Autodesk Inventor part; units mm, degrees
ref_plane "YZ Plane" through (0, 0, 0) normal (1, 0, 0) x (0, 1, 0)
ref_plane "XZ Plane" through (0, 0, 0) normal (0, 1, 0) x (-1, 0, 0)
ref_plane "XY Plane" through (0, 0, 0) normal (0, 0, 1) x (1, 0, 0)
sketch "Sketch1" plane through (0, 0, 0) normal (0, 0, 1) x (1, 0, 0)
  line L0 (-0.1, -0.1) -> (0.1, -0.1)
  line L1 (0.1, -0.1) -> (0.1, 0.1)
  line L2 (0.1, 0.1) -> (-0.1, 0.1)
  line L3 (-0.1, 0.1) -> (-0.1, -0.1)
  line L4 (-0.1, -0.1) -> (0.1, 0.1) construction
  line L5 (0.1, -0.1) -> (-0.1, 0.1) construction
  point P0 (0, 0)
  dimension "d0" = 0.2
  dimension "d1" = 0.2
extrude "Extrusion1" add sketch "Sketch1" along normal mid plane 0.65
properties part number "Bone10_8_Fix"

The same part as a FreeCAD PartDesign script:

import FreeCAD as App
import Part
import Sketcher
Q = App.Units.Quantity


def add_polygon(sketch, points):
    """Adds a closed chain of lines whose ends are joined by coincident constraints."""
    first, n = sketch.GeometryCount, len(points)
    for a, b in zip(points, points[1:] + points[:1]):
        sketch.addGeometry(Part.LineSegment(App.Vector(*a, 0), App.Vector(*b, 0)), False)
    for i in range(n):
        sketch.addConstraint(Sketcher.Constraint("Coincident", first + i, 2, first + (i + 1) % n, 1))

doc = App.newDocument("Part")
body = doc.addObject("PartDesign::Body", "Body")

# Sketch on XY plane
sketch1 = body.newObject("Sketcher::SketchObject", "Sketch")
sketch1.AttachmentSupport = (doc.getObject("XY_Plane"), [""])
sketch1.MapMode = "FlatFace"
add_polygon(sketch1, [(-0.1, 0.1), (-0.1, -0.1), (0.1, -0.1), (0.1, 0.1)])  # lines 0-3
sketch1.addConstraint([
    Sketcher.Constraint("Vertical", 0),
    Sketcher.Constraint("Horizontal", 1),
    Sketcher.Constraint("Vertical", 2),
    Sketcher.Constraint("Horizontal", 3),
    Sketcher.Constraint("Symmetric", 0, 2, 2, 2, -1, 1),
    Sketcher.Constraint("Equal", 3, 0),
    Sketcher.Constraint("DistanceX", 1, 1, 1, 2, Q("0.2 mm")),
])
pad1 = body.newObject("PartDesign::Pad", "Pad")
pad1.Profile = sketch1
pad1.Length = 0.65
pad1.Midplane = True

doc.recompute()
